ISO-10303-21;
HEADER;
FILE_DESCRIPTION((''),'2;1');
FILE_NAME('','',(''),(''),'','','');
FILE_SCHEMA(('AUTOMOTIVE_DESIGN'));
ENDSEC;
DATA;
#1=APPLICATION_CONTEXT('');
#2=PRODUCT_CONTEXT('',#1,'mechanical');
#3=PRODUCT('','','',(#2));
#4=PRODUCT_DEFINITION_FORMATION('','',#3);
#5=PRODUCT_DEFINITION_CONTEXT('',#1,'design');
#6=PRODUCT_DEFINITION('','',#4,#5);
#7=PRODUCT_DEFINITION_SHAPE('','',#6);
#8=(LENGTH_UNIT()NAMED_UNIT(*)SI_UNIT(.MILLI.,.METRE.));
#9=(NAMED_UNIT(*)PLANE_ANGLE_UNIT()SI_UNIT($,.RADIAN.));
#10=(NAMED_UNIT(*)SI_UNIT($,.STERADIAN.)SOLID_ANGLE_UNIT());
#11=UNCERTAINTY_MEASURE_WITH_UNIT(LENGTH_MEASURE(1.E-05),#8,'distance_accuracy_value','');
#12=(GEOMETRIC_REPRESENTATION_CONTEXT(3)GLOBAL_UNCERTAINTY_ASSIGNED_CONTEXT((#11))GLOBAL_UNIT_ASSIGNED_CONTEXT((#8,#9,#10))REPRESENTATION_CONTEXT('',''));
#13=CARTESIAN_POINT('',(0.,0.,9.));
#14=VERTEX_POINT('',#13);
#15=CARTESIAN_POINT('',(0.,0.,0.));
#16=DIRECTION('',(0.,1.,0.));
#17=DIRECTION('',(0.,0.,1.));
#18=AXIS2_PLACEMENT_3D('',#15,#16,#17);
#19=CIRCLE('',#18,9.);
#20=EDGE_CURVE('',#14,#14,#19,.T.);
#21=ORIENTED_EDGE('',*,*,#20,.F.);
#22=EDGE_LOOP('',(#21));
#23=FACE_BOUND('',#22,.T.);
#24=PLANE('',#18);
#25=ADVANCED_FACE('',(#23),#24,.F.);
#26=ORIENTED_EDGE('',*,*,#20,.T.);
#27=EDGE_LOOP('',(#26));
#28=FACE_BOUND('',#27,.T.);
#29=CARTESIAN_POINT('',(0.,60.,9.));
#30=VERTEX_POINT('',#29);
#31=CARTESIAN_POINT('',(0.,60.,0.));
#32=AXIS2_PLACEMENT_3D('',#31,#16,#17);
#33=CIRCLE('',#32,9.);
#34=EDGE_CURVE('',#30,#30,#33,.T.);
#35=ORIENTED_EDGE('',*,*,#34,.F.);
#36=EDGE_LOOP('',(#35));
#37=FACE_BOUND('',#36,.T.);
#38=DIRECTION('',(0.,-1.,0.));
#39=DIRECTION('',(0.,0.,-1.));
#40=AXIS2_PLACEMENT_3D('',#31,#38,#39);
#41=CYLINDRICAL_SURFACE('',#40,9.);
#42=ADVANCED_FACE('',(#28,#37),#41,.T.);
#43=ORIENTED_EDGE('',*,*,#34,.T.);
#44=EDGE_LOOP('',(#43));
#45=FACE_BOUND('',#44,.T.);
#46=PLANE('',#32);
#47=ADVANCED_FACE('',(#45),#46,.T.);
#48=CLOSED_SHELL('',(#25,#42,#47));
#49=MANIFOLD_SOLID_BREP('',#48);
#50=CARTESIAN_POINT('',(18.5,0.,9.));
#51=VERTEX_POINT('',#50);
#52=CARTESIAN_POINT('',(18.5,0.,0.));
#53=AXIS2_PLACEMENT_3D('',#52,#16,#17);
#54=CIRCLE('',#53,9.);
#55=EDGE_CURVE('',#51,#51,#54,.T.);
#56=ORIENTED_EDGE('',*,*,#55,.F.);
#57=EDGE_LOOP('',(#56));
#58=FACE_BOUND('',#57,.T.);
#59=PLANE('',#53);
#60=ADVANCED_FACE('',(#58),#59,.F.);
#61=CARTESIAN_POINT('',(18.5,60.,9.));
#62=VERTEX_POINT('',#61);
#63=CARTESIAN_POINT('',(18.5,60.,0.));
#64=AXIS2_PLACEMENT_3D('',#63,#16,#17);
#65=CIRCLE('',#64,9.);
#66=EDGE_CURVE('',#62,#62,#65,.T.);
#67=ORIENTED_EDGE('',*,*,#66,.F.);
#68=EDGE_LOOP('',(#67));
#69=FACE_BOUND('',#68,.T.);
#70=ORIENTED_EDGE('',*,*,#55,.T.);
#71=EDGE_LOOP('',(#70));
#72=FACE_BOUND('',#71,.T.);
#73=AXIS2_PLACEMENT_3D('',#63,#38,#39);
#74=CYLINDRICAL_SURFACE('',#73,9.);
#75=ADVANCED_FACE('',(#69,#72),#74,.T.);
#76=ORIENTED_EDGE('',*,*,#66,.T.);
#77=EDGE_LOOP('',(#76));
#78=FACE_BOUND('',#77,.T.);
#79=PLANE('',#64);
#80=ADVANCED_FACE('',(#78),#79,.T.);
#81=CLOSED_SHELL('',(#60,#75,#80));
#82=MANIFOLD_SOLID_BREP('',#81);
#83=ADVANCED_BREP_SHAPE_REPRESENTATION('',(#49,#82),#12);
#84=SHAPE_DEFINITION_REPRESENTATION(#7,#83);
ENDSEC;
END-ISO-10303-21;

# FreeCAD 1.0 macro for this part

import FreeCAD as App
import Part
import Sketcher
from FreeCAD import Vector

doc = App.newDocument("Part")
body = doc.addObject("PartDesign::Body", "Body")

# Sketch on XZ plane
sketch1 = doc.addObject("Sketcher::SketchObject", "Sketch")
body.addObject(sketch1)
sketch1.AttachmentSupport = (doc.XZ_Plane, [""])
sketch1.MapMode = "FlatFace"
sketch1.addGeometry(Part.Circle(Vector(0, 0, 0), Vector(0, 0, 1), 9), False)
sketch1.addConstraint([
    Sketcher.Constraint("Coincident", 0, 3, -1, 1),
    Sketcher.Constraint("Diameter", 0, 18.0),
])
pad1 = doc.addObject("PartDesign::Pad", "Pad")
body.addObject(pad1)
pad1.Profile = sketch1
pad1.Length = 60
pad1.Reversed = True
body2 = doc.addObject("PartDesign::Body", "Body001")

# Sketch on XZ plane
sketch2 = doc.addObject("Sketcher::SketchObject", "Sketch001")
body2.addObject(sketch2)
sketch2.AttachmentSupport = (doc.getObject("XZ_Plane001"), [""])
sketch2.MapMode = "FlatFace"
sketch2.addGeometry(Part.Circle(Vector(18, 0, 0), Vector(0, 0, 1), 9), False)
sketch2.addConstraint([
    Sketcher.Constraint("PointOnObject", 0, 3, -1),
    Sketcher.Constraint("Diameter", 0, 18.0),
    Sketcher.Constraint("DistanceX", -1, 1, 0, 3, 18.5),
])
pad2 = doc.addObject("PartDesign::Pad", "Pad001")
body2.addObject(pad2)
pad2.Profile = sketch2
pad2.Length = 60
pad2.Reversed = True

doc.recompute()
